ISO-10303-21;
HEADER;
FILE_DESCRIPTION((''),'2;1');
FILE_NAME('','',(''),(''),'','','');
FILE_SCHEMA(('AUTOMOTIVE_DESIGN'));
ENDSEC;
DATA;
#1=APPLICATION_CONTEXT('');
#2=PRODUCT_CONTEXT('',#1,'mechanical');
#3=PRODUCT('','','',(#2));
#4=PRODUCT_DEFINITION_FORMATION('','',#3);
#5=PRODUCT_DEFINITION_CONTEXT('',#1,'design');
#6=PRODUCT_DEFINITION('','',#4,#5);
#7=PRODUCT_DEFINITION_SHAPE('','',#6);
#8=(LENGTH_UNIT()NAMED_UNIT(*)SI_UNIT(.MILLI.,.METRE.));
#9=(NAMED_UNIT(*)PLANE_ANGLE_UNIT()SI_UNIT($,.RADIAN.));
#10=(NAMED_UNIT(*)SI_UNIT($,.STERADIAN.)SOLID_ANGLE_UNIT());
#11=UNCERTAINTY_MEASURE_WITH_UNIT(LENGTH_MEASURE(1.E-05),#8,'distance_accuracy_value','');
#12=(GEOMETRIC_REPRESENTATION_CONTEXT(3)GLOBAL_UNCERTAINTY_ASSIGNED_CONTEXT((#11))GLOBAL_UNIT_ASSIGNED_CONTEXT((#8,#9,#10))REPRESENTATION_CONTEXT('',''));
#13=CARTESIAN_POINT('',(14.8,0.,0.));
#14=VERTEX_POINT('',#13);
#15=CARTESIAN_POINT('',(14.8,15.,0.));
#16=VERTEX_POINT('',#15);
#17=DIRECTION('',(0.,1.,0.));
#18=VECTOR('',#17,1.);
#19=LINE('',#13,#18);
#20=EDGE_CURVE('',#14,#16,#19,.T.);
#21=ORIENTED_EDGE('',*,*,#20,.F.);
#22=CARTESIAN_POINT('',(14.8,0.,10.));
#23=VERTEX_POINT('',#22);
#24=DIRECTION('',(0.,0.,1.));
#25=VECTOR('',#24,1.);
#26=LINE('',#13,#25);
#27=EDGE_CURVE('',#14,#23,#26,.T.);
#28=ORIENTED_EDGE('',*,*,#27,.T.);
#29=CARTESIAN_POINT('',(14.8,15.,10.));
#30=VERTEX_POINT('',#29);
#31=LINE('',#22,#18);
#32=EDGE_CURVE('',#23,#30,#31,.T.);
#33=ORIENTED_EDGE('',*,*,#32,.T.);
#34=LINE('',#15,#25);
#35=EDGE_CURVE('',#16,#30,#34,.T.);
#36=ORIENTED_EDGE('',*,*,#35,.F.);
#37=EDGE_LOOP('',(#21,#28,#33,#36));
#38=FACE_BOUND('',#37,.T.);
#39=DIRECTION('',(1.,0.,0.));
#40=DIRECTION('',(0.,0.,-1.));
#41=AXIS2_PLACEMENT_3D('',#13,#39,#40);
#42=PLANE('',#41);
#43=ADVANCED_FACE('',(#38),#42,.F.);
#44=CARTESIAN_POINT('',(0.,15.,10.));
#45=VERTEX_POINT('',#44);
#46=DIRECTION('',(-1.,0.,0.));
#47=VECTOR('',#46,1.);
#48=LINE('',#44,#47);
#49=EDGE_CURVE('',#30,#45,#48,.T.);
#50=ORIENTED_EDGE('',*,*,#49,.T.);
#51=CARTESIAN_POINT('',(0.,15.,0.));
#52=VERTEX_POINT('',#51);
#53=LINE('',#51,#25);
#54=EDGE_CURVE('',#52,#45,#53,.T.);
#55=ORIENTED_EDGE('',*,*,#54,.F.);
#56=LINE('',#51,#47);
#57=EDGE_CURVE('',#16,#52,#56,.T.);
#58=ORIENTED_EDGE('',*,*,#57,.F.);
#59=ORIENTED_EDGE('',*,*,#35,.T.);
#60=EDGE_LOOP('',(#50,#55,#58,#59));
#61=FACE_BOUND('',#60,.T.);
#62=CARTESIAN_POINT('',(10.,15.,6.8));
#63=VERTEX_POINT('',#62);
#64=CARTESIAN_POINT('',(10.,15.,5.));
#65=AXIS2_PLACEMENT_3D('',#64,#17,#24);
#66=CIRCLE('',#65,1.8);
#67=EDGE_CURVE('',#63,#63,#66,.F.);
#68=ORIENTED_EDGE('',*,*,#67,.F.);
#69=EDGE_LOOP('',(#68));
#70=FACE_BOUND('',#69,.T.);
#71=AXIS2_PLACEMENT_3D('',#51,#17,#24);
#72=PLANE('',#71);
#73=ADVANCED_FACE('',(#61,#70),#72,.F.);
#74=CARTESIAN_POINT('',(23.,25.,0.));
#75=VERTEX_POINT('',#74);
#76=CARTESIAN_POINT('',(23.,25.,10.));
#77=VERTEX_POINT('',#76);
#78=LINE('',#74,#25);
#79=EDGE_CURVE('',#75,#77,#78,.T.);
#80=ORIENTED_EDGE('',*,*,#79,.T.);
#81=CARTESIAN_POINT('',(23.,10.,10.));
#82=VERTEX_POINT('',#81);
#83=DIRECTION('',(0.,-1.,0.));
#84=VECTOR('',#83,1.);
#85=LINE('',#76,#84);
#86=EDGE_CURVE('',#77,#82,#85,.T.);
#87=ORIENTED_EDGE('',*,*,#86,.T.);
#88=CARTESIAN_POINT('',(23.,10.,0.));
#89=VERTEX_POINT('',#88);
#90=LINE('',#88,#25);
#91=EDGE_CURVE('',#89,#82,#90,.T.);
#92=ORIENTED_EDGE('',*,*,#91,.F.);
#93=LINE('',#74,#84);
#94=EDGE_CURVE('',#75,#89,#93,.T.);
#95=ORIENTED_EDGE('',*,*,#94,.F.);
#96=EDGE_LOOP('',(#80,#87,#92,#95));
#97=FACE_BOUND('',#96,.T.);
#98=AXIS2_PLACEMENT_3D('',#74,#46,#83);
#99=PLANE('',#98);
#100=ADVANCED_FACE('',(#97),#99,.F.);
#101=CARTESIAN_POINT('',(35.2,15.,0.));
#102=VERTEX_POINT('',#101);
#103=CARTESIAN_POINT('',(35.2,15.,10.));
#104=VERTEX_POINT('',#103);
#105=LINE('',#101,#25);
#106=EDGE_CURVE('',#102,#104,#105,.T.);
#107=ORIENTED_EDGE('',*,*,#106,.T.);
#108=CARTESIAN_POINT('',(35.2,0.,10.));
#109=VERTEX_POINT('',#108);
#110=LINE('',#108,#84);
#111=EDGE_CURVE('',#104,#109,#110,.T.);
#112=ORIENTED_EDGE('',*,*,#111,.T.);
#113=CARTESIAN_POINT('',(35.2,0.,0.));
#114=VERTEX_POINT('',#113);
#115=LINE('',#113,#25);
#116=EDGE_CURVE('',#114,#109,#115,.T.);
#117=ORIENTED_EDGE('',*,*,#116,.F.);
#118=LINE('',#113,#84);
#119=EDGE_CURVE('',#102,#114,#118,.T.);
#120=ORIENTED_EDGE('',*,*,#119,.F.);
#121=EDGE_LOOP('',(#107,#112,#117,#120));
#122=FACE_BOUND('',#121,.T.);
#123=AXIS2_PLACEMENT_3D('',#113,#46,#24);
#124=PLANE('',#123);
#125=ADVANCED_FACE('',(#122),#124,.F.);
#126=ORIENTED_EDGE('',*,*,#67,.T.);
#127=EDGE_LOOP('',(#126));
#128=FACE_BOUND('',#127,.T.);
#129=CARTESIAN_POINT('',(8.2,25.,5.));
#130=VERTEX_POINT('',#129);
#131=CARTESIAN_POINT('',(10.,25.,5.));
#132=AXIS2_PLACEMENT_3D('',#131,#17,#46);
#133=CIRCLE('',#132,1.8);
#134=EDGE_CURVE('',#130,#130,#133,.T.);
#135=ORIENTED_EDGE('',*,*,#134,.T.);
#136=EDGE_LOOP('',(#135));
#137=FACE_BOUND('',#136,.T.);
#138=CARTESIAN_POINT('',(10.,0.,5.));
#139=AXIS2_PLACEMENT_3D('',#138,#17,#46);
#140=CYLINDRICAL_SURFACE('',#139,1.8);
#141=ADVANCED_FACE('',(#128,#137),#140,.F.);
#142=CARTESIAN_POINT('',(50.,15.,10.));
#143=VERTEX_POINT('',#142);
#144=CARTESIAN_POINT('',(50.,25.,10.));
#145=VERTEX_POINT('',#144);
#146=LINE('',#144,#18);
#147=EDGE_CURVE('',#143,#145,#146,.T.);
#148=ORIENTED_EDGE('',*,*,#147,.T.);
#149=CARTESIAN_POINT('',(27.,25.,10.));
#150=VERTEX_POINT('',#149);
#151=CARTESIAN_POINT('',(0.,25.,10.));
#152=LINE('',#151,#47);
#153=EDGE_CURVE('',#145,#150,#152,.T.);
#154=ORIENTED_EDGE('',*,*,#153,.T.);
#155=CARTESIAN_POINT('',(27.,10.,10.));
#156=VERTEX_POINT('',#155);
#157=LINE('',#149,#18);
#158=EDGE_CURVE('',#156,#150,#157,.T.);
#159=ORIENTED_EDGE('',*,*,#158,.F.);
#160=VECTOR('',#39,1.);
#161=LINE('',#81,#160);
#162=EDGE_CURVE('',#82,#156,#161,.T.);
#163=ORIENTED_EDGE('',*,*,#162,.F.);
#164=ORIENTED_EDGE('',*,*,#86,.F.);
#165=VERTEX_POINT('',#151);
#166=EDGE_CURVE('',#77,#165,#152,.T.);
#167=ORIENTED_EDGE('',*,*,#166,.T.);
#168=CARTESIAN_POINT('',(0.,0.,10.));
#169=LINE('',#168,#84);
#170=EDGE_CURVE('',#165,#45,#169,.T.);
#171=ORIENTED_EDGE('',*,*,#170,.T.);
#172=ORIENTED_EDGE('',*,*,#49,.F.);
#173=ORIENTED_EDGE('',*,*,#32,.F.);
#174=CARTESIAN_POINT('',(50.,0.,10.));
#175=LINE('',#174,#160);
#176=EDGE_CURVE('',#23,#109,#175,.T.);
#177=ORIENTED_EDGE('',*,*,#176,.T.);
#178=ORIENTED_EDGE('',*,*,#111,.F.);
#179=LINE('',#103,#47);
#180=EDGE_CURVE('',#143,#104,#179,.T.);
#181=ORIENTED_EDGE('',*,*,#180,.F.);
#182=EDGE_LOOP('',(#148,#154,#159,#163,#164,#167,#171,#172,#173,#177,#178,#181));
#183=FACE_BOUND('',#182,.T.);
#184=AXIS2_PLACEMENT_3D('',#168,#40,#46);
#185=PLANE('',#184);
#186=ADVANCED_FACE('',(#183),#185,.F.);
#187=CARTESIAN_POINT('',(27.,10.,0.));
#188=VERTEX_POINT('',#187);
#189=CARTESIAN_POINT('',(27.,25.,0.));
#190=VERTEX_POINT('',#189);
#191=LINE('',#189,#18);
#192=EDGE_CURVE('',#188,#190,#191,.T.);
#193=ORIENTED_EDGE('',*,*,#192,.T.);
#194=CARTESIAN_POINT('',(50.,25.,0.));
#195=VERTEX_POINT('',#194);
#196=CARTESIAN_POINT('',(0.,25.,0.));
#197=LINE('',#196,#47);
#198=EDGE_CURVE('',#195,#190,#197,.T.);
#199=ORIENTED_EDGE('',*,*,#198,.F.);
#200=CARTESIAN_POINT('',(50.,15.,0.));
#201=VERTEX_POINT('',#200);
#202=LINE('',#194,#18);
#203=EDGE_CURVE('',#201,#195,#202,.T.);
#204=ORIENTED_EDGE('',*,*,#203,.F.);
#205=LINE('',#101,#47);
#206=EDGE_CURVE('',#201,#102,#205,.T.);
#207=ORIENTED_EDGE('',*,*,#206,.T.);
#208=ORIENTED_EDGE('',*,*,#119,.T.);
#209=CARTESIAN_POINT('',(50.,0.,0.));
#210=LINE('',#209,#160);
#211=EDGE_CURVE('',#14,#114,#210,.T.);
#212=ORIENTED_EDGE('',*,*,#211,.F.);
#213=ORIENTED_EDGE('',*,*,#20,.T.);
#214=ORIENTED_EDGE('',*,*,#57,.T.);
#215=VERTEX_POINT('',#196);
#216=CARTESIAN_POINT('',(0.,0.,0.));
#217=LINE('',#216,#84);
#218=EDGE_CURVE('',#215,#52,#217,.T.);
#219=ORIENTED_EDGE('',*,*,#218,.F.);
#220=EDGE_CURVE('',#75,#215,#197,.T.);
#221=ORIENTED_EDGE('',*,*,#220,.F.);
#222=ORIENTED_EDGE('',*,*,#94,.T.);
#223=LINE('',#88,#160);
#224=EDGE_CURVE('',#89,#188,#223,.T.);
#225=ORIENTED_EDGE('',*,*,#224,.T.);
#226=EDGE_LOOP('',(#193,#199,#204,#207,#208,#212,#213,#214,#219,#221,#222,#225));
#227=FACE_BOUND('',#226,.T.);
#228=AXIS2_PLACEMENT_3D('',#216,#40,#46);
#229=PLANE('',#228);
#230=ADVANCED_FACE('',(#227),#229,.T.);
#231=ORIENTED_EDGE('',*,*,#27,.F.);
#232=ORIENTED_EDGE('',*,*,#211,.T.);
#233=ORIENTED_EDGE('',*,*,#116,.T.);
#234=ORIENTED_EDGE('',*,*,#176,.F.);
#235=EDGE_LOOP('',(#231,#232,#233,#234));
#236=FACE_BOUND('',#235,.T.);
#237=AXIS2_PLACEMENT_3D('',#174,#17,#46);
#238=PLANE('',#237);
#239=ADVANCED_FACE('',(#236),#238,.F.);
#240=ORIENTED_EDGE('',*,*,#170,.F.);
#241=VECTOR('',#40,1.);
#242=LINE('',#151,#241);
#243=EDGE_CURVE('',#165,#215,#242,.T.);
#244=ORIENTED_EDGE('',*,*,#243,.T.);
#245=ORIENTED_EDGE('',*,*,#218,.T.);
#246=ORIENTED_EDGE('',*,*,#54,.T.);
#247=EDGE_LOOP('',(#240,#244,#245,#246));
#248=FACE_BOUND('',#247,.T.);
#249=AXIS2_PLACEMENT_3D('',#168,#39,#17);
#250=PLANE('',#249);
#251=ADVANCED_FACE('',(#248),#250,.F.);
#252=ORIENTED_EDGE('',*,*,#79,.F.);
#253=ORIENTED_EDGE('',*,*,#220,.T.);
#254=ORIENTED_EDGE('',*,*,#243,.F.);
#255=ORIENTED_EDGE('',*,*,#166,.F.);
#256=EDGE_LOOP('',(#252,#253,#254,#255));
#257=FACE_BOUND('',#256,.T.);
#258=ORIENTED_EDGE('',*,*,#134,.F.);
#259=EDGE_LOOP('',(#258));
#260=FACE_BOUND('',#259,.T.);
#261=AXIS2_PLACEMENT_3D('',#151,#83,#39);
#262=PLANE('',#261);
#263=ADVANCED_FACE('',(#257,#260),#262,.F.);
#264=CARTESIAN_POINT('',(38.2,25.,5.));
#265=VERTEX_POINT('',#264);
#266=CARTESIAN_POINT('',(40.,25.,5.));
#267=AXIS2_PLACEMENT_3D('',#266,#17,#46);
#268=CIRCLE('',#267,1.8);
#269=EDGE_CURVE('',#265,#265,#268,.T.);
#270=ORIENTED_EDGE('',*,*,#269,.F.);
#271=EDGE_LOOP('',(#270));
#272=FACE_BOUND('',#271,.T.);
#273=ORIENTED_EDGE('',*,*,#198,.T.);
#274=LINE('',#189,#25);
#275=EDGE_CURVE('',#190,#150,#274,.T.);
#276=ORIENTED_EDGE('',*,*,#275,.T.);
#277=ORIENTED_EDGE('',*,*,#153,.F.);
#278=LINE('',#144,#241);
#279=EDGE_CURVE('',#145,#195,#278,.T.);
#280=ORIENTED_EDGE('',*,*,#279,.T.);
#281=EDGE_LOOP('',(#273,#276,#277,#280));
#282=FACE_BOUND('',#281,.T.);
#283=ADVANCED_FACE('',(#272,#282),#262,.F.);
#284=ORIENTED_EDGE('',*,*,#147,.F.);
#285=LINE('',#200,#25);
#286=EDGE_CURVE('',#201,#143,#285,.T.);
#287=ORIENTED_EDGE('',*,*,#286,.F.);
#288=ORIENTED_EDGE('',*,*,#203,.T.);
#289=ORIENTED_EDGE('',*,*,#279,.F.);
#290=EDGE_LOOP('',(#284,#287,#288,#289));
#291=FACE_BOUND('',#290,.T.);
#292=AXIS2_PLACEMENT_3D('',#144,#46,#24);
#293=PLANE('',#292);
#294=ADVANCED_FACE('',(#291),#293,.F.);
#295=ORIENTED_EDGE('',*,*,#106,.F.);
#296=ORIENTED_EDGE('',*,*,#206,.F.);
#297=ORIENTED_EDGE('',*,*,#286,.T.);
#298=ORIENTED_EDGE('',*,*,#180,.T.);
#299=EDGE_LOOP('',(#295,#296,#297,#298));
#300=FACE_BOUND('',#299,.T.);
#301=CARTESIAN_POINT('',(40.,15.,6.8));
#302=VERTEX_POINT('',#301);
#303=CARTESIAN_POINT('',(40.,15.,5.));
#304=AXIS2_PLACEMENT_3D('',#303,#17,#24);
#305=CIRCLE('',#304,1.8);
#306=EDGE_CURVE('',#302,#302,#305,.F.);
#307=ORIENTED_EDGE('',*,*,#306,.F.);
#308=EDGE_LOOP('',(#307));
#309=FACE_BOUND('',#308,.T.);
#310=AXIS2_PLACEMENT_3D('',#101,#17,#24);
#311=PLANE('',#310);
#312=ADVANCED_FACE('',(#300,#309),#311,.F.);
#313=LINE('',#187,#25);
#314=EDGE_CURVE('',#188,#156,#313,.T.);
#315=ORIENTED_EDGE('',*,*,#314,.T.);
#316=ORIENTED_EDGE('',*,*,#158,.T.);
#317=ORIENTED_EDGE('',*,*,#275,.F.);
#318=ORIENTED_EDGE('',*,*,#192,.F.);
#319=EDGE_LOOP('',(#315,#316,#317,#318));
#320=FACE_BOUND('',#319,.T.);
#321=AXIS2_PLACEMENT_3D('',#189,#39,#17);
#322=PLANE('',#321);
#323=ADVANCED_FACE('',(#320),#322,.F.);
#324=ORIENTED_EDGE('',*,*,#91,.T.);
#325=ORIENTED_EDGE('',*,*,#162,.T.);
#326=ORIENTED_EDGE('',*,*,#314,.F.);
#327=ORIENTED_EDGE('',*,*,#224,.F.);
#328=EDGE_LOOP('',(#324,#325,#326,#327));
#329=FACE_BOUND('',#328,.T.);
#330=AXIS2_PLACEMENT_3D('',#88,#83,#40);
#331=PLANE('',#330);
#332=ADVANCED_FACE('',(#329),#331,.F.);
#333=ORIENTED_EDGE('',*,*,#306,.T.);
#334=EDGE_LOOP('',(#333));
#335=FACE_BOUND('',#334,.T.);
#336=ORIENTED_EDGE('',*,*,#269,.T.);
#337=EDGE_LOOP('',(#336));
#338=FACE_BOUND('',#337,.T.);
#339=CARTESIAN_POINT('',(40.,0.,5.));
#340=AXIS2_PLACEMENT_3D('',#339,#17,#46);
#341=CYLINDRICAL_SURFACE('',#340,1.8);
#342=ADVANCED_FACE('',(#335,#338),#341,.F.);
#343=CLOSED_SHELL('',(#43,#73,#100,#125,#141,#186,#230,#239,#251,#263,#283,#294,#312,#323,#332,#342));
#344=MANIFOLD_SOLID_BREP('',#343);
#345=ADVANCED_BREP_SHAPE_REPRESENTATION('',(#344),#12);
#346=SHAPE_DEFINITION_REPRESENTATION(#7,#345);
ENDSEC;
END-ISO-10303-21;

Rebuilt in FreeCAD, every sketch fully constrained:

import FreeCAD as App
import Part
import Sketcher
from FreeCAD import Vector


def add_polygon(sketch, points):
    """Adds a closed chain of lines whose ends are joined by coincident constraints."""
    first, n = sketch.GeometryCount, len(points)
    for a, b in zip(points, points[1:] + points[:1]):
        sketch.addGeometry(Part.LineSegment(App.Vector(*a, 0), App.Vector(*b, 0)), False)
    for i in range(n):
        sketch.addConstraint(Sketcher.Constraint("Coincident", first + i, 2, first + (i + 1) % n, 1))

doc = App.newDocument("Part")
body = doc.addObject("PartDesign::Body", "Body")

# Sketch on XY plane
sketch1 = body.newObject("Sketcher::SketchObject", "Sketch")
sketch1.AttachmentSupport = (doc.getObject("XY_Plane"), [""])
sketch1.MapMode = "FlatFace"
add_polygon(sketch1, [(0, 25), (0, 0), (50, 0), (50, 25)])  # lines 0-3
sketch1.addConstraint([
    Sketcher.Constraint("Vertical", 0),
    Sketcher.Constraint("Horizontal", 1),
    Sketcher.Constraint("Vertical", 2),
    Sketcher.Constraint("Horizontal", 3),
    Sketcher.Constraint("Coincident", 0, 2, -1, 1),
    Sketcher.Constraint("DistanceX", 1, 1, 1, 2, 50.0),
    Sketcher.Constraint("DistanceY", 0, 2, 0, 1, 25.0),
])
pad1 = body.newObject("PartDesign::Pad", "Pad")
pad1.Profile = sketch1
pad1.Length = 10

# Sketch on XZ plane
sketch2 = body.newObject("Sketcher::SketchObject", "Sketch001")
sketch2.AttachmentSupport = (doc.getObject("XZ_Plane"), [""])
sketch2.MapMode = "FlatFace"
sketch2.AttachmentOffset = App.Placement(Vector(0, 0, -25), App.Rotation())
sketch2.addGeometry([
    Part.Circle(Vector(10, 5, 0), Vector(0, 0, 1), 1.8),
    Part.Circle(Vector(40, 5, 0), Vector(0, 0, 1), 1.8),
], False)
sketch2.addConstraint([
    Sketcher.Constraint("Equal", 0, 1),
    Sketcher.Constraint("Horizontal", 0, 3, 1, 3),
    Sketcher.Constraint("Diameter", 0, 3.6),
    Sketcher.Constraint("DistanceX", -1, 1, 0, 3, 10.0),
    Sketcher.Constraint("DistanceY", -1, 1, 0, 3, 5.0),
    Sketcher.Constraint("DistanceX", -1, 1, 1, 3, 40.0),
])
pocket1 = body.newObject("PartDesign::Pocket", "Pocket")
pocket1.Profile = sketch2
pocket1.Type = "ThroughAll"
pocket1.Reversed = True

# Sketch on XY plane
sketch3 = body.newObject("Sketcher::SketchObject", "Sketch002")
sketch3.AttachmentSupport = (doc.getObject("XY_Plane"), [""])
sketch3.MapMode = "FlatFace"
sketch3.AttachmentOffset = App.Placement(Vector(0, 0, 10), App.Rotation())
add_polygon(sketch3, [(23, 25), (23, 10), (27, 10), (27, 25)])  # lines 0-3
sketch3.addConstraint([
    Sketcher.Constraint("Vertical", 0),
    Sketcher.Constraint("Horizontal", 1),
    Sketcher.Constraint("Vertical", 2),
    Sketcher.Constraint("Horizontal", 3),
    Sketcher.Constraint("DistanceX", 1, 1, 1, 2, 4.0),
    Sketcher.Constraint("DistanceY", 0, 2, 0, 1, 15.0),
    Sketcher.Constraint("DistanceX", -1, 1, 0, 2, 23.0),
    Sketcher.Constraint("DistanceY", -1, 1, 0, 2, 10.0),
])
pocket2 = body.newObject("PartDesign::Pocket", "Pocket001")
pocket2.Profile = sketch3
pocket2.Length = 10

# Sketch on XY plane
sketch4 = body.newObject("Sketcher::SketchObject", "Sketch003")
sketch4.AttachmentSupport = (doc.getObject("XY_Plane"), [""])
sketch4.MapMode = "FlatFace"
sketch4.AttachmentOffset = App.Placement(Vector(0, 0, 10), App.Rotation())
add_polygon(sketch4, [(0, 15), (0, 0), (15, 0), (15, 15)])  # lines 0-3
add_polygon(sketch4, [(35, 15), (35, 0), (50, 0), (50, 15)])  # lines 4-7
sketch4.addConstraint([
    Sketcher.Constraint("Vertical", 0),
    Sketcher.Constraint("Horizontal", 1),
    Sketcher.Constraint("Vertical", 2),
    Sketcher.Constraint("Horizontal", 3),
    Sketcher.Constraint("Vertical", 4),
    Sketcher.Constraint("Horizontal", 5),
    Sketcher.Constraint("Vertical", 6),
    Sketcher.Constraint("Horizontal", 7),
    Sketcher.Constraint("Coincident", 0, 2, -1, 1),
    Sketcher.Constraint("PointOnObject", 4, 2, -1),
    Sketcher.Constraint("Horizontal", 3, 2, 6, 2),
    Sketcher.Constraint("Equal", 3, 5),
    Sketcher.Constraint("DistanceY", 0, 2, 0, 1, 15.0),
    Sketcher.Constraint("DistanceX", 1, 1, 1, 2, 14.8),
    Sketcher.Constraint("DistanceX", -1, 1, 5, 2, 50.0),
])
pocket3 = body.newObject("PartDesign::Pocket", "Pocket002")
pocket3.Profile = sketch4
pocket3.Type = "ThroughAll"

doc.recompute()
